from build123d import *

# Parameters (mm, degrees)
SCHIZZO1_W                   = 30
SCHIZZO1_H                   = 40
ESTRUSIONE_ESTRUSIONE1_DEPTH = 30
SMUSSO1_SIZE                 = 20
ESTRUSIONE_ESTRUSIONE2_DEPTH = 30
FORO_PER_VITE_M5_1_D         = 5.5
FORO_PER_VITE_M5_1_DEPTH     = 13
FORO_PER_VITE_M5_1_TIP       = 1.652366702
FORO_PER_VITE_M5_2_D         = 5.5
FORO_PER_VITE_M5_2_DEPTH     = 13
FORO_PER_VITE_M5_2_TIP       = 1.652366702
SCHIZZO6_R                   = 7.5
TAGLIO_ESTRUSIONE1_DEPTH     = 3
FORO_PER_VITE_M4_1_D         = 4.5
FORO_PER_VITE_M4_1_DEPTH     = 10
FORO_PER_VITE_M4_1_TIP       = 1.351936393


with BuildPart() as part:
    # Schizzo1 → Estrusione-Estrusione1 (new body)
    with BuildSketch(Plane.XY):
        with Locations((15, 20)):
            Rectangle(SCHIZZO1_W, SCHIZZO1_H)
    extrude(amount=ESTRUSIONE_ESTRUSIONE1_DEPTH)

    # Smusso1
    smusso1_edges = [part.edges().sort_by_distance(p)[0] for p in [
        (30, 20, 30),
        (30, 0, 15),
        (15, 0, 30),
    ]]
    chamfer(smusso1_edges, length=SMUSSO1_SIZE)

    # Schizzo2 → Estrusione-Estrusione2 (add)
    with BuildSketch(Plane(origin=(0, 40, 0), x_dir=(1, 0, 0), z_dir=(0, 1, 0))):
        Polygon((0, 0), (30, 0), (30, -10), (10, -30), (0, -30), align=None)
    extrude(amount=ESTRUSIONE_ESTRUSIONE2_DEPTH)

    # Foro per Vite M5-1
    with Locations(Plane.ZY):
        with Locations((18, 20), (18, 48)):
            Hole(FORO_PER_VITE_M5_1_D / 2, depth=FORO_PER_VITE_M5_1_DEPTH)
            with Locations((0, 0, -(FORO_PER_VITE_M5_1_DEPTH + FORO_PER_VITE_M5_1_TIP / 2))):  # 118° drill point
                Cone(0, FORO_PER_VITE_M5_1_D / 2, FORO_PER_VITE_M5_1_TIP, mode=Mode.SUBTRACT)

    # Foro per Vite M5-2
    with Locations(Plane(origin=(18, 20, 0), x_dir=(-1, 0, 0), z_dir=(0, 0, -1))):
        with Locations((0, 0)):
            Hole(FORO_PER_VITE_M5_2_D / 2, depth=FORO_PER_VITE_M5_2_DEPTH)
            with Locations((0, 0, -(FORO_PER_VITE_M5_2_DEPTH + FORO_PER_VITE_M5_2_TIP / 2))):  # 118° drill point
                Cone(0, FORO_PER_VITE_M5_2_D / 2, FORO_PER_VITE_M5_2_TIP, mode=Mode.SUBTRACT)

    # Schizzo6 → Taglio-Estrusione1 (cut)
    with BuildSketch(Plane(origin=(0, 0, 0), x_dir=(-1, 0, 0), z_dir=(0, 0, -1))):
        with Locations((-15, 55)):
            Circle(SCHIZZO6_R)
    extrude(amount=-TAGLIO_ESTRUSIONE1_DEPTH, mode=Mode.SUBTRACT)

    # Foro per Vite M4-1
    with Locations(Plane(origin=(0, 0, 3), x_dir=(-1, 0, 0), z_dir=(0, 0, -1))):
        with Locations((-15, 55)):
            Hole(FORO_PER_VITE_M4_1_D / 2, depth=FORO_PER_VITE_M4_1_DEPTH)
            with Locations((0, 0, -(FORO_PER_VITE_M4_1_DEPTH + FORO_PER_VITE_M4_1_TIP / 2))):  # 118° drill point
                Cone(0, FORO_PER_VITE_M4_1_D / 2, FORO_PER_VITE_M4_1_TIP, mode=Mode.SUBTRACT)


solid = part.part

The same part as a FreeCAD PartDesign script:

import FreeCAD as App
import Part
import Sketcher
from FreeCAD import Vector
Q = App.Units.Quantity


def edges_at(feature, points):
    """Names of the edges that pass closest to the given points."""
    edges = feature.Shape.Edges
    near = lambda p: min(range(len(edges)), key=lambda i: edges[i].distToShape(Part.Vertex(*p))[0])
    return sorted({f"Edge{near(p) + 1}" for p in points})

doc = App.newDocument("Part")
body = doc.addObject("PartDesign::Body", "Body")

# Sketch on XY plane
sketch1 = body.newObject("Sketcher::SketchObject", "Sketch")
sketch1.AttachmentSupport = (doc.getObject("XY_Plane"), [""])
sketch1.MapMode = "FlatFace"
sketch1.addGeometry([
    Part.LineSegment(Vector(0, 40, 0), Vector(0, 0, 0)),
    Part.LineSegment(Vector(0, 0, 0), Vector(30, 0, 0)),
    Part.LineSegment(Vector(30, 0, 0), Vector(30, 40, 0)),
    Part.LineSegment(Vector(30, 40, 0), Vector(0, 40, 0)),
], False)
sketch1.addConstraint([
    Sketcher.Constraint("Coincident", 0, 2, 1, 1),
    Sketcher.Constraint("Coincident", 1, 2, 2, 1),
    Sketcher.Constraint("Coincident", 2, 2, 3, 1),
    Sketcher.Constraint("Coincident", 3, 2, 0, 1),
    Sketcher.Constraint("Vertical", 0),
    Sketcher.Constraint("Horizontal", 1),
    Sketcher.Constraint("Vertical", 2),
    Sketcher.Constraint("Horizontal", 3),
    Sketcher.Constraint("Coincident", 0, 2, -1, 1),
    Sketcher.Constraint("DistanceX", 1, 1, 1, 2, Q("30 mm")),
    Sketcher.Constraint("DistanceY", 0, 2, 0, 1, Q("40 mm")),
])
pad1 = body.newObject("PartDesign::Pad", "Pad")
pad1.Profile = sketch1
pad1.Length = 30
doc.recompute()

chamfer = body.newObject("PartDesign::Chamfer", "Chamfer")
chamfer.Base = (pad1, edges_at(pad1, [(30, 20, 30), (30, 0, 15), (15, 0, 30)]))
chamfer.Size = 20

# Sketch on XZ plane
sketch2 = body.newObject("Sketcher::SketchObject", "Sketch001")
sketch2.AttachmentSupport = (doc.getObject("XZ_Plane"), [""])
sketch2.MapMode = "FlatFace"
sketch2.AttachmentOffset = App.Placement(Vector(0, 0, -40), App.Rotation())
sketch2.addGeometry([
    Part.LineSegment(Vector(30, 0, 0), Vector(0, 0, 0)),  # 0
    Part.LineSegment(Vector(0, 0, 0), Vector(0, 30, 0)),  # 1
    Part.LineSegment(Vector(0, 30, 0), Vector(10, 30, 0)),  # 2
    Part.LineSegment(Vector(10, 30, 0), Vector(30, 10, 0)),  # 3
    Part.LineSegment(Vector(30, 10, 0), Vector(30, 0, 0)),  # 4
], False)
sketch2.addConstraint([
    Sketcher.Constraint("Coincident", 0, 2, 1, 1),
    Sketcher.Constraint("Coincident", 1, 2, 2, 1),
    Sketcher.Constraint("Coincident", 2, 2, 3, 1),
    Sketcher.Constraint("Coincident", 3, 2, 4, 1),
    Sketcher.Constraint("Coincident", 4, 2, 0, 1),
    Sketcher.Constraint("Horizontal", 0),
    Sketcher.Constraint("Vertical", 1),
    Sketcher.Constraint("Horizontal", 2),
    Sketcher.Constraint("Vertical", 4),
    Sketcher.Constraint("Coincident", 0, 2, -1, 1),
    Sketcher.Constraint("Equal", 0, 1),
    Sketcher.Constraint("Equal", 2, 4),
    Sketcher.Constraint("DistanceX", 0, 2, 0, 1, Q("30 mm")),
    Sketcher.Constraint("DistanceX", 2, 1, 2, 2, Q("10 mm")),
])
pad2 = body.newObject("PartDesign::Pad", "Pad001")
pad2.Profile = sketch2
pad2.Length = 30
pad2.Reversed = True

# Sketch on YZ plane
sketch3 = body.newObject("Sketcher::SketchObject", "Sketch002")
sketch3.AttachmentSupport = (doc.getObject("YZ_Plane"), [""])
sketch3.MapMode = "FlatFace"
sketch3.addGeometry([
    Part.Circle(Vector(20, 18, 0), Vector(0, 0, 1), 2.8),
    Part.Circle(Vector(48, 18, 0), Vector(0, 0, 1), 2.8),
], False)
sketch3.addConstraint([
    Sketcher.Constraint("Equal", 0, 1),
    Sketcher.Constraint("Horizontal", 0, 3, 1, 3),
    Sketcher.Constraint("Diameter", 0, Q("5.5 mm")),
    Sketcher.Constraint("DistanceX", -1, 1, 0, 3, Q("20 mm")),
    Sketcher.Constraint("DistanceY", -1, 1, 0, 3, Q("18 mm")),
    Sketcher.Constraint("DistanceX", -1, 1, 1, 3, Q("48 mm")),
])
doc.recompute()
hole = body.newObject("PartDesign::Hole", "Hole")
hole.Profile = sketch3
hole.ThreadType = "None"
hole.Diameter = 5.5
hole.DepthType = "Dimension"
hole.Depth = 13
hole.DrillPoint = "Angled"
hole.DrillPointAngle = 118
hole.Reversed = True

# Sketch on XY plane
sketch4 = body.newObject("Sketcher::SketchObject", "Sketch003")
sketch4.AttachmentSupport = (doc.getObject("XY_Plane"), [""])
sketch4.MapMode = "FlatFace"
sketch4.addGeometry(Part.Circle(Vector(18, 20, 0), Vector(0, 0, 1), 2.8), False)
sketch4.addConstraint([
    Sketcher.Constraint("Diameter", 0, Q("5.5 mm")),
    Sketcher.Constraint("DistanceX", -1, 1, 0, 3, Q("18 mm")),
    Sketcher.Constraint("DistanceY", -1, 1, 0, 3, Q("20 mm")),
])
doc.recompute()
hole2 = body.newObject("PartDesign::Hole", "Hole001")
hole2.Profile = sketch4
hole2.ThreadType = "None"
hole2.Diameter = 5.5
hole2.DepthType = "Dimension"
hole2.Depth = 13
hole2.DrillPoint = "Angled"
hole2.DrillPointAngle = 118
hole2.Reversed = True

# Sketch on XY plane
sketch5 = body.newObject("Sketcher::SketchObject", "Sketch004")
sketch5.AttachmentSupport = (doc.getObject("XY_Plane"), [""])
sketch5.MapMode = "FlatFace"
sketch5.addGeometry(Part.Circle(Vector(15, 55, 0), Vector(0, 0, 1), 8), False)
sketch5.addConstraint([
    Sketcher.Constraint("Diameter", 0, Q("15 mm")),
    Sketcher.Constraint("DistanceX", -1, 1, 0, 3, Q("15 mm")),
    Sketcher.Constraint("DistanceY", -1, 1, 0, 3, Q("55 mm")),
])
pocket1 = body.newObject("PartDesign::Pocket", "Pocket")
pocket1.Profile = sketch5
pocket1.Length = 3
pocket1.Reversed = True

# Sketch on XY plane
sketch6 = body.newObject("Sketcher::SketchObject", "Sketch005")
sketch6.AttachmentSupport = (doc.getObject("XY_Plane"), [""])
sketch6.MapMode = "FlatFace"
sketch6.AttachmentOffset = App.Placement(Vector(0, 0, 3), App.Rotation())
sketch6.addGeometry(Part.Circle(Vector(15, 55, 0), Vector(0, 0, 1), 2.2), False)
sketch6.addConstraint([
    Sketcher.Constraint("Diameter", 0, Q("4.5 mm")),
    Sketcher.Constraint("DistanceX", -1, 1, 0, 3, Q("15 mm")),
    Sketcher.Constraint("DistanceY", -1, 1, 0, 3, Q("55 mm")),
])
doc.recompute()
hole3 = body.newObject("PartDesign::Hole", "Hole002")
hole3.Profile = sketch6
hole3.ThreadType = "None"
hole3.Diameter = 4.5
hole3.DepthType = "Dimension"
hole3.Depth = 10
hole3.DrillPoint = "Angled"
hole3.DrillPointAngle = 118
hole3.Reversed = True

doc.recompute()
